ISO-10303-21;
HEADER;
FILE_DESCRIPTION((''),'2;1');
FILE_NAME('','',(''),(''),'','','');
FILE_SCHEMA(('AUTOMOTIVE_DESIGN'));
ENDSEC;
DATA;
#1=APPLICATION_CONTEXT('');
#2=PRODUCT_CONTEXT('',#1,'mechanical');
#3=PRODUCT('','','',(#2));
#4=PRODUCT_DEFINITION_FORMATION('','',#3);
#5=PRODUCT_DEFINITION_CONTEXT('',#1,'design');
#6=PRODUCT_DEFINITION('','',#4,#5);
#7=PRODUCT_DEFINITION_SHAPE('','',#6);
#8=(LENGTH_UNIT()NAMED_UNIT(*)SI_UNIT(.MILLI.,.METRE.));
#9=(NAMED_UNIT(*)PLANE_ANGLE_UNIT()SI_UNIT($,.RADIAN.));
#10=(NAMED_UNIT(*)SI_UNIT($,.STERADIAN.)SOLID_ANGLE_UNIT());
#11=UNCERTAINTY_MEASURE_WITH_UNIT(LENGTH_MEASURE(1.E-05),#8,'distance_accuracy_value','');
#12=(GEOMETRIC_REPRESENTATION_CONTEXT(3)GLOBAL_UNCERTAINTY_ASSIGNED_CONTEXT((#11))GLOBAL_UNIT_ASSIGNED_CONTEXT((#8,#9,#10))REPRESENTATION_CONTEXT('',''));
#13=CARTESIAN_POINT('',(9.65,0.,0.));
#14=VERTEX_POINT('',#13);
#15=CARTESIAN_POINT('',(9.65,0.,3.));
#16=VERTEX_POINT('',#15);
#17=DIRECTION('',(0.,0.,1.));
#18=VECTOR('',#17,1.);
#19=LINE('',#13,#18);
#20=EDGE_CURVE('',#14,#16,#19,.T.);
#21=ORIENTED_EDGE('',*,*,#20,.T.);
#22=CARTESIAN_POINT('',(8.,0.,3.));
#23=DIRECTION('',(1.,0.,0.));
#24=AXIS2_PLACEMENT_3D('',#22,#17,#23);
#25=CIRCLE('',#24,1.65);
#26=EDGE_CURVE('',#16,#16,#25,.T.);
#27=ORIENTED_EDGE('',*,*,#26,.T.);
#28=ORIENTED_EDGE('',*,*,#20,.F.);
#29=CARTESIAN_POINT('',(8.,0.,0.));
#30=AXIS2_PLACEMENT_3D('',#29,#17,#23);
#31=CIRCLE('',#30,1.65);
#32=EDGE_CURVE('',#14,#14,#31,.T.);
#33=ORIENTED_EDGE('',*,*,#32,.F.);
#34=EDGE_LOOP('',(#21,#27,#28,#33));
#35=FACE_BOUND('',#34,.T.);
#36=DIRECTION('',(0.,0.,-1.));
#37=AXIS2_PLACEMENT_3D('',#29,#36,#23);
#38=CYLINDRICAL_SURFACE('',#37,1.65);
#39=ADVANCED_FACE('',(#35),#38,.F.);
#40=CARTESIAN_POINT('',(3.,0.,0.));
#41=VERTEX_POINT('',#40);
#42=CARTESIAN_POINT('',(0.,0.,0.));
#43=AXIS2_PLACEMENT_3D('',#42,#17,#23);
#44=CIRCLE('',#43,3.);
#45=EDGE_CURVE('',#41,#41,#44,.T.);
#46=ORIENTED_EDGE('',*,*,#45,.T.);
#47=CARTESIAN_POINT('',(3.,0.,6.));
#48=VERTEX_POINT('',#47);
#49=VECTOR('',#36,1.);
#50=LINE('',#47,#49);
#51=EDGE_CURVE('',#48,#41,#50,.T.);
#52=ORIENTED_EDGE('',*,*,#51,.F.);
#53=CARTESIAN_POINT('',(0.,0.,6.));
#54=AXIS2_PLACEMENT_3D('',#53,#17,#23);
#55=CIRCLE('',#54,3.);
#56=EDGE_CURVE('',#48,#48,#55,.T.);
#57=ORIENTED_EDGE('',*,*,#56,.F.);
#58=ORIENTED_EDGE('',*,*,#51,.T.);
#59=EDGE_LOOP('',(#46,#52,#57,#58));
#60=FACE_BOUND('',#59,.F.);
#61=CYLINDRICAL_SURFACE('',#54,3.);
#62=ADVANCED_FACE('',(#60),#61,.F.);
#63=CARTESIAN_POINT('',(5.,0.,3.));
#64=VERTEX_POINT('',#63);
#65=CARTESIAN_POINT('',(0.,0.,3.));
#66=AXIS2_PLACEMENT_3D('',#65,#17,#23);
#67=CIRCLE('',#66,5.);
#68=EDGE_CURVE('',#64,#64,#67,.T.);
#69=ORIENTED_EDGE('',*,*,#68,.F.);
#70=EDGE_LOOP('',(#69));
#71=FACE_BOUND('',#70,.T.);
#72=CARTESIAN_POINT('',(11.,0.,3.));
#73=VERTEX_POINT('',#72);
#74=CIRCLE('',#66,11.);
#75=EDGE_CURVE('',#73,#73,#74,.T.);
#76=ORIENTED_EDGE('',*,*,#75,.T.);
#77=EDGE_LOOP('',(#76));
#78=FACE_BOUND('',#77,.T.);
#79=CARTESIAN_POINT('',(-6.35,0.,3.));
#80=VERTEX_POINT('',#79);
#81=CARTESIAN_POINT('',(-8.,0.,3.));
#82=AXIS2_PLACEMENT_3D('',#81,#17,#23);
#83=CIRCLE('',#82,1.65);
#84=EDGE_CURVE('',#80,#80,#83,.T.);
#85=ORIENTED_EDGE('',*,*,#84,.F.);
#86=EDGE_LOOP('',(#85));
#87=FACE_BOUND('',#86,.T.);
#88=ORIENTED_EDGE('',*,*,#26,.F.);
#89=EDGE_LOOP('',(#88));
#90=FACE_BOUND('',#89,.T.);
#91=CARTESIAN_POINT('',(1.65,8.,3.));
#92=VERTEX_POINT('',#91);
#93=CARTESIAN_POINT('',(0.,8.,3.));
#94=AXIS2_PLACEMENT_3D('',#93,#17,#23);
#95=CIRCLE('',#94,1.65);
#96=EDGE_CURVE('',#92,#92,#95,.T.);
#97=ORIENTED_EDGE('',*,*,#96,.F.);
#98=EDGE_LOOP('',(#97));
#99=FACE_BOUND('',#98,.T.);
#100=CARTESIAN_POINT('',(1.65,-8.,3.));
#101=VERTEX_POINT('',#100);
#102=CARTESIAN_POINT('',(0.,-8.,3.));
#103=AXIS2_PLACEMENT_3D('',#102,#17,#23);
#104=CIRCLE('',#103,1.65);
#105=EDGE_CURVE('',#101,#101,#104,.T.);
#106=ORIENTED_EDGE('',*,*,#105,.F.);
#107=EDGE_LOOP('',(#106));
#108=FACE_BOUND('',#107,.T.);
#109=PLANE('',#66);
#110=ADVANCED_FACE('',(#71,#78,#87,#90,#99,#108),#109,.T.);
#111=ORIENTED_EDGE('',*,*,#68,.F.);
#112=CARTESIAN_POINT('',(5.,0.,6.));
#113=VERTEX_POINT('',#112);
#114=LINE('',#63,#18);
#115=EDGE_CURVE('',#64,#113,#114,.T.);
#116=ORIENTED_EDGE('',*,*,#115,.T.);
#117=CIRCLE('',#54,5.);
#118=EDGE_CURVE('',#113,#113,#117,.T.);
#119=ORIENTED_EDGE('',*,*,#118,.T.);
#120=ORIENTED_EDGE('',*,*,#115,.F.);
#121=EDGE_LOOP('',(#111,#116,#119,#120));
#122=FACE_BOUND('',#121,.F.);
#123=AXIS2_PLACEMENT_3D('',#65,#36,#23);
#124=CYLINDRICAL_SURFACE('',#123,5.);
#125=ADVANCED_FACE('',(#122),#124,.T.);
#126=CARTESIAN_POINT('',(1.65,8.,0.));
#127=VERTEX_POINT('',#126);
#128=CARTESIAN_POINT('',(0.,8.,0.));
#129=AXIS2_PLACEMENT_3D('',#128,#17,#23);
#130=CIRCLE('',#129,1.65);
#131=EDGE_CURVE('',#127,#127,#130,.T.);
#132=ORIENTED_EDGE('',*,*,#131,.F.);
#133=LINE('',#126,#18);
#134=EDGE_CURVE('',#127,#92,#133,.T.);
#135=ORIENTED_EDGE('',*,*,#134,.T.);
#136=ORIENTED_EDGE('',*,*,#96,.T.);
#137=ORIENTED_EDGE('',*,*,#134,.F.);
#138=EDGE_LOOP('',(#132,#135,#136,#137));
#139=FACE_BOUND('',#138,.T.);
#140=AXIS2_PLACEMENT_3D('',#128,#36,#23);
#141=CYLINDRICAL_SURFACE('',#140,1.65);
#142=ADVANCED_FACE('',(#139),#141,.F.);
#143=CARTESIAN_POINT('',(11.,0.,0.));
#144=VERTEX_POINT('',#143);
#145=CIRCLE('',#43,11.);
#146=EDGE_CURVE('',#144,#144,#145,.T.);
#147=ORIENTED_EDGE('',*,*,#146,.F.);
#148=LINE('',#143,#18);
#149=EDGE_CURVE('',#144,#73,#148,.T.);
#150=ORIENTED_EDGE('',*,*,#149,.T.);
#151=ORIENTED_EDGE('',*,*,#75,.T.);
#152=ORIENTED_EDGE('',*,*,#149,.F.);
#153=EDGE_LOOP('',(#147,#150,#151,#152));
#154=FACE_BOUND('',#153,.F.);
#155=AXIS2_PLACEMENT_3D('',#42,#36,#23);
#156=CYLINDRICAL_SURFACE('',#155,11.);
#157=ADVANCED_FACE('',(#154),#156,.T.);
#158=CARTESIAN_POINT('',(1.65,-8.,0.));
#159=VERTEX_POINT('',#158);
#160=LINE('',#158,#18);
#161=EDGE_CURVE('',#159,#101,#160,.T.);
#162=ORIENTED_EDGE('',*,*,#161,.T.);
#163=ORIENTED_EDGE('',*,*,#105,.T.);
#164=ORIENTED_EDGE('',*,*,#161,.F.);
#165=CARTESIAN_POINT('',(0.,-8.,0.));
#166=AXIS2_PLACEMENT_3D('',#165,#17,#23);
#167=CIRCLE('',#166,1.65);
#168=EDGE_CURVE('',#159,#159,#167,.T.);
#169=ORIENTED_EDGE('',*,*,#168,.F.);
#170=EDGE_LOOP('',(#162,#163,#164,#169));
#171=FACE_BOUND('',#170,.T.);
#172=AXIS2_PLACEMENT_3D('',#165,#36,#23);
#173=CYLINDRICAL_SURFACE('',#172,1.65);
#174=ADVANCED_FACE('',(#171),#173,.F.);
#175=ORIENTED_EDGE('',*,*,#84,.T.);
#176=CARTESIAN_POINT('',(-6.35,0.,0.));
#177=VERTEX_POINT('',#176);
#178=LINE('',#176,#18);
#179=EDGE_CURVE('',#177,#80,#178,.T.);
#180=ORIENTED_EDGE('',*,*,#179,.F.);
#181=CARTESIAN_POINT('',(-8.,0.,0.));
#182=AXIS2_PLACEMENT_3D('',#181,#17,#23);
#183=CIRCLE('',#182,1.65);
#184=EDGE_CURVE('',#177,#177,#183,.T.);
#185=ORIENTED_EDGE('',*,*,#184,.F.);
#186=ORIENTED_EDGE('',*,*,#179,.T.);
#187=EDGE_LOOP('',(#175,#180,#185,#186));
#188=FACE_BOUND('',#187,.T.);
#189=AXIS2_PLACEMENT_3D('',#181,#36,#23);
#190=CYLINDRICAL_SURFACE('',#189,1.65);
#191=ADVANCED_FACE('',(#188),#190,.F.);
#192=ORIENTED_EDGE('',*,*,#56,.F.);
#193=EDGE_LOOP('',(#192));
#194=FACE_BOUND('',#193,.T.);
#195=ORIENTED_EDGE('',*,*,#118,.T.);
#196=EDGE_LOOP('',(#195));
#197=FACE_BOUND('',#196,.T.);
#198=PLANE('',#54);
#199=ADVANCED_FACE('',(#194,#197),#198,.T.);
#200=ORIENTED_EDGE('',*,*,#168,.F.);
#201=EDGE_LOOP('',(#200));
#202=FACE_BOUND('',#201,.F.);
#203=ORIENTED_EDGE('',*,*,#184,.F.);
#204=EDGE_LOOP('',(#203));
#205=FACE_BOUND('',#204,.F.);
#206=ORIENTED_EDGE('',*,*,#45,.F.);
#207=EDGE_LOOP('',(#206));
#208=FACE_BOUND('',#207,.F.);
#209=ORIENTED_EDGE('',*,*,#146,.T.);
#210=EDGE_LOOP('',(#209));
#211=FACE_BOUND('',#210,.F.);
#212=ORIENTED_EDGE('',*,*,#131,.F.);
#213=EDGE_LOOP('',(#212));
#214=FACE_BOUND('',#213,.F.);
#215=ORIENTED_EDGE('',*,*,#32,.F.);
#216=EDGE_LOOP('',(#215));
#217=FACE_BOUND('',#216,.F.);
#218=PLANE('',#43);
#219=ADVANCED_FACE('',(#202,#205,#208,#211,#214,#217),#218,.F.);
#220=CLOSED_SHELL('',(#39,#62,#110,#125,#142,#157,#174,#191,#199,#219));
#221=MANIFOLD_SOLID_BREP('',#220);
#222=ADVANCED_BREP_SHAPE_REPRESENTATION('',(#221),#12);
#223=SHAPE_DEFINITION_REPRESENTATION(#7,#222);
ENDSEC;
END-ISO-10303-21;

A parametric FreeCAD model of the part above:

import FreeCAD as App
import Part
import Sketcher
from FreeCAD import Vector

doc = App.newDocument("Part")
params = doc.addObject("Spreadsheet::Sheet", "Params")
for row, (alias, value) in enumerate([
    ("sketch1_diameter", "22 mm"),
    ("sketch1_diameter2", "3.3 mm"),
    ("pad1_length", "3 mm"),
    ("sketch2_diameter", "10 mm"),
    ("pad2_length", "3 mm"),
    ("sketch3_diameter", "6 mm"),
], start=1):
    params.set(f"A{row}", alias)
    params.set(f"B{row}", "=" + value)
    params.setAlias(f"B{row}", alias)

body = doc.addObject("PartDesign::Body", "Body")

sketch1 = doc.addObject("Sketcher::SketchObject", "Sketch")
body.addObject(sketch1)
sketch1.AttachmentSupport = (doc.XY_Plane, [""])
sketch1.MapMode = "FlatFace"
sketch1.addGeometry([
    Part.Circle(Vector(0, 0, 0), Vector(0, 0, 1), 11),
    Part.Circle(Vector(0, -8, 0), Vector(0, 0, 1), 1.6),
    Part.Circle(Vector(-8, 0, 0), Vector(0, 0, 1), 1.6),
    Part.Circle(Vector(8, 0, 0), Vector(0, 0, 1), 1.6),
    Part.Circle(Vector(0, 8, 0), Vector(0, 0, 1), 1.6),
], False)
sketch1.addConstraint([
    Sketcher.Constraint("Coincident", 0, 3, -1, 1),
    Sketcher.Constraint("Equal", 1, 2),
    Sketcher.Constraint("Equal", 2, 3),
    Sketcher.Constraint("Equal", 3, 4),
    Sketcher.Constraint("Symmetric", 2, 3, 3, 3, -1, 1),
    Sketcher.Constraint("Symmetric", 1, 3, 4, 3, -1, 1),
    Sketcher.Constraint("PointOnObject", 1, 3, -2),
    Sketcher.Constraint("PointOnObject", 2, 3, -1),
    Sketcher.Constraint("Diameter", 0, 22.0),
    Sketcher.Constraint("Diameter", 1, 3.3),
    Sketcher.Constraint("DistanceY", 1, 3, -1, 1, 8.0),
    Sketcher.Constraint("DistanceX", 2, 3, -1, 1, 8.0),
])
sketch1.setExpression("Constraints[8]", "Params.sketch1_diameter")
sketch1.setExpression("Constraints[9]", "Params.sketch1_diameter2")
pad1 = doc.addObject("PartDesign::Pad", "Pad")
body.addObject(pad1)
pad1.Profile = sketch1
pad1.setExpression("Length", "Params.pad1_length")

sketch2 = doc.addObject("Sketcher::SketchObject", "Sketch001")
body.addObject(sketch2)
sketch2.AttachmentSupport = (doc.XY_Plane, [""])
sketch2.MapMode = "FlatFace"
sketch2.AttachmentOffset = App.Placement(Vector(0, 0, 3), App.Rotation())
sketch2.addGeometry(Part.Circle(Vector(0, 0, 0), Vector(0, 0, 1), 5), False)
sketch2.addConstraint([
    Sketcher.Constraint("Coincident", 0, 3, -1, 1),
    Sketcher.Constraint("Diameter", 0, 10.0),
])
sketch2.setExpression("Constraints[1]", "Params.sketch2_diameter")
pad2 = doc.addObject("PartDesign::Pad", "Pad001")
body.addObject(pad2)
pad2.Profile = sketch2
pad2.setExpression("Length", "Params.pad2_length")

sketch3 = doc.addObject("Sketcher::SketchObject", "Sketch002")
body.addObject(sketch3)
sketch3.AttachmentSupport = (doc.XY_Plane, [""])
sketch3.MapMode = "FlatFace"
sketch3.AttachmentOffset = App.Placement(Vector(0, 0, 6), App.Rotation())
sketch3.addGeometry(Part.Circle(Vector(0, 0, 0), Vector(0, 0, 1), 3), False)
sketch3.addConstraint([
    Sketcher.Constraint("Coincident", 0, 3, -1, 1),
    Sketcher.Constraint("Diameter", 0, 6.0),
])
sketch3.setExpression("Constraints[1]", "Params.sketch3_diameter")
pocket1 = doc.addObject("PartDesign::Pocket", "Pocket")
body.addObject(pocket1)
pocket1.Profile = sketch3
pocket1.Type = "ThroughAll"

doc.recompute()
